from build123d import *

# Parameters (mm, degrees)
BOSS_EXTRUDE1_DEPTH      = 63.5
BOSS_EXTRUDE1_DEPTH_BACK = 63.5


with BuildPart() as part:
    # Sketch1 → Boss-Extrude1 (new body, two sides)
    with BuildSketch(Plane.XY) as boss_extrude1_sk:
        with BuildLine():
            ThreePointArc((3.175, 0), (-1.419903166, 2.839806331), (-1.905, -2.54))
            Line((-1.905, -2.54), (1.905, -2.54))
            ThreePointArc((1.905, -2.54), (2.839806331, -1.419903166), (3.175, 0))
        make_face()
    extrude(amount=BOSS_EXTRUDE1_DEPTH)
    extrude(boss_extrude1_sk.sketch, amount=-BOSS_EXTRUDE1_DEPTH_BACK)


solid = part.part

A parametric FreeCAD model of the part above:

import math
import FreeCAD as App
import Part
import Sketcher
from FreeCAD import Vector
Q = App.Units.Quantity

doc = App.newDocument("Part")
body = doc.addObject("PartDesign::Body", "Body")

sketch1 = body.newObject("Sketcher::SketchObject", "Sketch")
sketch1.AttachmentSupport = (doc.getObject("XY_Plane"), [""])
sketch1.MapMode = "FlatFace"
sketch1.addGeometry(Part.ArcOfCircle(Part.Circle(Vector(0, 0, 0), Vector(0, 0, 1), 3.175), math.radians(0), math.radians(233.130102)), False)
sketch1.addGeometry(Part.LineSegment(Vector(-1.905, -2.54, 0), Vector(1.905, -2.54, 0)), False)
sketch1.addGeometry(Part.ArcOfCircle(Part.Circle(Vector(0, 0, 0), Vector(0, 0, 1), 3.175), math.radians(-53.130102), math.radians(0)), False)
sketch1.addConstraint(Sketcher.Constraint("Coincident", 0, 2, 1, 1))
sketch1.addConstraint(Sketcher.Constraint("Coincident", 1, 2, 2, 1))
sketch1.addConstraint(Sketcher.Constraint("Tangent", 2, 2, 0, 1))
sketch1.addConstraint(Sketcher.Constraint("Horizontal", 1))
sketch1.addConstraint(Sketcher.Constraint("Coincident", 0, 3, -1, 1))
sketch1.addConstraint(Sketcher.Constraint("Equal", 0, 2))
sketch1.addConstraint(Sketcher.Constraint("PointOnObject", 2, 2, -1))
sketch1.addConstraint(Sketcher.Constraint("Radius", 0, Q("0.125 in")))
sketch1.addConstraint(Sketcher.Constraint("DistanceX", 1, 1, 1, 2, Q("0.15 in")))
pad1 = body.newObject("PartDesign::Pad", "Pad")
pad1.Profile = sketch1
pad1.Type = "TwoLengths"
pad1.Length = Q("2.5 in")
pad1.Length2 = Q("2.5 in")

doc.recompute()
